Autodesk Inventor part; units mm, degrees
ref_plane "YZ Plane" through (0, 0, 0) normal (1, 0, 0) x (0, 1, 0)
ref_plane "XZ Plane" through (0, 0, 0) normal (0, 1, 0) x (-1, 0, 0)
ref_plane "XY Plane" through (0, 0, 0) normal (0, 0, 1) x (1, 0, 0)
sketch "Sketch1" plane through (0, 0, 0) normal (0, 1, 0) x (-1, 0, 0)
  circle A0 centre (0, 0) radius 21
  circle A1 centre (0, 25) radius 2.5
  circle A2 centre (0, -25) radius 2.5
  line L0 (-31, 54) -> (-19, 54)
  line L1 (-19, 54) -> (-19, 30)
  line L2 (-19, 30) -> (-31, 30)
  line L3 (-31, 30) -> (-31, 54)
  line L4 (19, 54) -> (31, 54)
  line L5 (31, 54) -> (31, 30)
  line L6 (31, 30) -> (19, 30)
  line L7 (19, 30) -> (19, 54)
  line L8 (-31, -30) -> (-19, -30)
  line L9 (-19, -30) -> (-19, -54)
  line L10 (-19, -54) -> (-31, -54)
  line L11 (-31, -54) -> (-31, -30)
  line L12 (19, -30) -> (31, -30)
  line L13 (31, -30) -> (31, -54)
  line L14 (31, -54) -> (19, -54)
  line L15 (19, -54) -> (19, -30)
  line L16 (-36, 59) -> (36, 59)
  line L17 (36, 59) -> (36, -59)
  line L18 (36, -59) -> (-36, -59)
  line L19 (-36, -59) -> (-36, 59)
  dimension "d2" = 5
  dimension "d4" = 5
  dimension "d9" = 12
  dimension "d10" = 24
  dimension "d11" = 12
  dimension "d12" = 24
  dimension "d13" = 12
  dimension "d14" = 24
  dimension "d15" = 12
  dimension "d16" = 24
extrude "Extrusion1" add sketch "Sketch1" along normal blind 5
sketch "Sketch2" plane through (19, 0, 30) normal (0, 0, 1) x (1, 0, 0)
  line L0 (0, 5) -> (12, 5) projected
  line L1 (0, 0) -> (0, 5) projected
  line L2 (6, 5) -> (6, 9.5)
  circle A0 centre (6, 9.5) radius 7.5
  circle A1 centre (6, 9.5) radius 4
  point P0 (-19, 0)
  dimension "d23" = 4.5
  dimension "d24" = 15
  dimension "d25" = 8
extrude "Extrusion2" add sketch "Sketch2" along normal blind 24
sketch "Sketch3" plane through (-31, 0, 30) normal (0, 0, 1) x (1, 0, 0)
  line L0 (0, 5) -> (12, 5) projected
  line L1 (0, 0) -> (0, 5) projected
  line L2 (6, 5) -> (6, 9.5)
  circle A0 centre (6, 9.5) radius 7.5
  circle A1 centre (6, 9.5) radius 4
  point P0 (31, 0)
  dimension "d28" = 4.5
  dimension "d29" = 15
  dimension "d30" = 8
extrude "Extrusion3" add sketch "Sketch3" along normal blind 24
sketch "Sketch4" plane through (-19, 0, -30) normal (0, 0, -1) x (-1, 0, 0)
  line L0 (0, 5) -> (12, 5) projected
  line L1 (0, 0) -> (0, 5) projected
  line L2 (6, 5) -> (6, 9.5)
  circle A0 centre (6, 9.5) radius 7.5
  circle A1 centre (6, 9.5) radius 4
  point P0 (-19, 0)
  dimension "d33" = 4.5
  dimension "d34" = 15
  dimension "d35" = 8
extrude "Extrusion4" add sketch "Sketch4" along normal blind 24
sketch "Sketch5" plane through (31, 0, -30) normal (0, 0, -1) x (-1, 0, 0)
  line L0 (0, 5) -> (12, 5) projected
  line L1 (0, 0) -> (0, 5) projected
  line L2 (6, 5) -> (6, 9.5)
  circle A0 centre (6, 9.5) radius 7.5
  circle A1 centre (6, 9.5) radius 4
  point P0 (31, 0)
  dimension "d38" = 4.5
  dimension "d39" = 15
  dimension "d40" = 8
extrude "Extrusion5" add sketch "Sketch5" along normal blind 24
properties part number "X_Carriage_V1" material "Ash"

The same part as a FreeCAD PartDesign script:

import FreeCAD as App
import Part
import Sketcher
Q = App.Units.Quantity


def add_polygon(sketch, points):
    """Adds a closed chain of lines whose ends are joined by coincident constraints."""
    first, n = sketch.GeometryCount, len(points)
    for a, b in zip(points, points[1:] + points[:1]):
        sketch.addGeometry(Part.LineSegment(App.Vector(*a, 0), App.Vector(*b, 0)), False)
    for i in range(n):
        sketch.addConstraint(Sketcher.Constraint("Coincident", first + i, 2, first + (i + 1) % n, 1))

doc = App.newDocument("Part")
body = doc.addObject("PartDesign::Body", "Body")

# Sketch on XZ plane
sketch1 = body.newObject("Sketcher::SketchObject", "Sketch")
sketch1.AttachmentSupport = (doc.getObject("XZ_Plane"), [""])
sketch1.MapMode = "FlatFace"
add_polygon(sketch1, [(-36, 59), (36, 59), (36, -59), (-36, -59)])  # lines 0-3
add_polygon(sketch1, [(31, -54), (31, -30), (19, -30), (19, -54)])  # lines 4-7
add_polygon(sketch1, [(-19, -54), (-19, -30), (-31, -30), (-31, -54)])  # lines 8-11
sketch1.addGeometry(Part.Circle(App.Vector(0, -25, 0), App.Vector(0, 0, 1), 2.5), False)  # 12
add_polygon(sketch1, [(31, 30), (31, 54), (19, 54), (19, 30)])  # lines 13-16
sketch1.addGeometry(Part.Circle(App.Vector(0, 0, 0), App.Vector(0, 0, 1), 21), False)  # 17
sketch1.addGeometry(Part.Circle(App.Vector(0, 25, 0), App.Vector(0, 0, 1), 2.5), False)  # 18
add_polygon(sketch1, [(-19, 30), (-19, 54), (-31, 54), (-31, 30)])  # lines 19-22
sketch1.addConstraint([
    Sketcher.Constraint("Horizontal", 0),
    Sketcher.Constraint("Vertical", 1),
    Sketcher.Constraint("Horizontal", 2),
    Sketcher.Constraint("Vertical", 3),
    Sketcher.Constraint("Vertical", 4),
    Sketcher.Constraint("Horizontal", 5),
    Sketcher.Constraint("Vertical", 6),
    Sketcher.Constraint("Horizontal", 7),
    Sketcher.Constraint("Vertical", 8),
    Sketcher.Constraint("Horizontal", 9),
    Sketcher.Constraint("Vertical", 10),
    Sketcher.Constraint("Horizontal", 11),
    Sketcher.Constraint("Vertical", 13),
    Sketcher.Constraint("Horizontal", 14),
    Sketcher.Constraint("Vertical", 15),
    Sketcher.Constraint("Horizontal", 16),
    Sketcher.Constraint("Vertical", 19),
    Sketcher.Constraint("Horizontal", 20),
    Sketcher.Constraint("Vertical", 21),
    Sketcher.Constraint("Horizontal", 22),
    Sketcher.Constraint("Coincident", 17, 3, -1, 1),
    Sketcher.Constraint("Equal", 12, 18),
    Sketcher.Constraint("Symmetric", 12, 3, 18, 3, -1, 1),
    Sketcher.Constraint("Symmetric", 0, 2, 2, 2, -1, 1),
    Sketcher.Constraint("Symmetric", 10, 2, 13, 2, -1, 1),
    Sketcher.Constraint("Symmetric", 8, 2, 15, 2, -1, 1),
    Sketcher.Constraint("Symmetric", 6, 2, 19, 2, -1, 1),
    Sketcher.Constraint("Symmetric", 4, 2, 21, 2, -1, 1),
    Sketcher.Constraint("Symmetric", 5, 2, 8, 2, -2),
    Sketcher.Constraint("Symmetric", 7, 2, 10, 2, -2),
    Sketcher.Constraint("PointOnObject", 12, 3, -2),
    Sketcher.Constraint("Diameter", 12, Q("5 mm")),
    Sketcher.Constraint("DistanceX", 5, 2, 5, 1, Q("12 mm")),
    Sketcher.Constraint("DistanceY", 4, 1, 4, 2, Q("24 mm")),
    Sketcher.Constraint("Diameter", 17, Q("42 mm")),
    Sketcher.Constraint("DistanceX", 4, 2, 1, 2, Q("5 mm")),
    Sketcher.Constraint("DistanceY", 4, 2, 12, 3, Q("5 mm")),
    Sketcher.Constraint("DistanceY", 1, 2, 6, 2, Q("5 mm")),
    Sketcher.Constraint("DistanceX", 0, 1, 0, 2, Q("72 mm")),
    Sketcher.Constraint("DistanceY", 1, 2, 1, 1, Q("118 mm")),
])
pad1 = body.newObject("PartDesign::Pad", "Pad")
pad1.Profile = sketch1
pad1.Length = 5
pad1.Reversed = True

# Sketch on XY plane
sketch2 = body.newObject("Sketcher::SketchObject", "Sketch001")
sketch2.AttachmentSupport = (doc.getObject("XY_Plane"), [""])
sketch2.MapMode = "FlatFace"
sketch2.AttachmentOffset = App.Placement(App.Vector(0, 0, 30), App.Rotation())
sketch2.addGeometry([
    Part.Circle(App.Vector(25, 9.5, 0), App.Vector(0, 0, 1), 7.5),
    Part.Circle(App.Vector(25, 9.5, 0), App.Vector(0, 0, 1), 4),
], False)
sketch2.addConstraint([
    Sketcher.Constraint("Coincident", 1, 3, 0, 3),
    Sketcher.Constraint("Diameter", 0, Q("15 mm")),
    Sketcher.Constraint("Diameter", 1, Q("8 mm")),
    Sketcher.Constraint("DistanceX", -1, 1, 0, 3, Q("25 mm")),
    Sketcher.Constraint("DistanceY", -1, 1, 0, 3, Q("9.5 mm")),
])
pad2 = body.newObject("PartDesign::Pad", "Pad001")
pad2.Profile = sketch2
pad2.Length = 24

# Sketch on XY plane
sketch3 = body.newObject("Sketcher::SketchObject", "Sketch002")
sketch3.AttachmentSupport = (doc.getObject("XY_Plane"), [""])
sketch3.MapMode = "FlatFace"
sketch3.AttachmentOffset = App.Placement(App.Vector(0, 0, 30), App.Rotation())
sketch3.addGeometry([
    Part.Circle(App.Vector(-25, 9.5, 0), App.Vector(0, 0, 1), 7.5),
    Part.Circle(App.Vector(-25, 9.5, 0), App.Vector(0, 0, 1), 4),
], False)
sketch3.addConstraint([
    Sketcher.Constraint("Coincident", 1, 3, 0, 3),
    Sketcher.Constraint("Diameter", 0, Q("15 mm")),
    Sketcher.Constraint("Diameter", 1, Q("8 mm")),
    Sketcher.Constraint("DistanceX", 0, 3, -1, 1, Q("25 mm")),
    Sketcher.Constraint("DistanceY", -1, 1, 0, 3, Q("9.5 mm")),
])
pad3 = body.newObject("PartDesign::Pad", "Pad002")
pad3.Profile = sketch3
pad3.Length = 24

# Sketch on XY plane
sketch4 = body.newObject("Sketcher::SketchObject", "Sketch003")
sketch4.AttachmentSupport = (doc.getObject("XY_Plane"), [""])
sketch4.MapMode = "FlatFace"
sketch4.AttachmentOffset = App.Placement(App.Vector(0, 0, -30), App.Rotation())
sketch4.addGeometry([
    Part.Circle(App.Vector(-25, 9.5, 0), App.Vector(0, 0, 1), 7.5),
    Part.Circle(App.Vector(-25, 9.5, 0), App.Vector(0, 0, 1), 4),
], False)
sketch4.addConstraint([
    Sketcher.Constraint("Coincident", 1, 3, 0, 3),
    Sketcher.Constraint("Diameter", 0, Q("15 mm")),
    Sketcher.Constraint("Diameter", 1, Q("8 mm")),
    Sketcher.Constraint("DistanceX", 0, 3, -1, 1, Q("25 mm")),
    Sketcher.Constraint("DistanceY", -1, 1, 0, 3, Q("9.5 mm")),
])
pad4 = body.newObject("PartDesign::Pad", "Pad003")
pad4.Profile = sketch4
pad4.Length = 24
pad4.Reversed = True

# Sketch on XY plane
sketch5 = body.newObject("Sketcher::SketchObject", "Sketch004")
sketch5.AttachmentSupport = (doc.getObject("XY_Plane"), [""])
sketch5.MapMode = "FlatFace"
sketch5.AttachmentOffset = App.Placement(App.Vector(0, 0, -30), App.Rotation())
sketch5.addGeometry([
    Part.Circle(App.Vector(25, 9.5, 0), App.Vector(0, 0, 1), 7.5),
    Part.Circle(App.Vector(25, 9.5, 0), App.Vector(0, 0, 1), 4),
], False)
sketch5.addConstraint([
    Sketcher.Constraint("Coincident", 1, 3, 0, 3),
    Sketcher.Constraint("Diameter", 0, Q("15 mm")),
    Sketcher.Constraint("Diameter", 1, Q("8 mm")),
    Sketcher.Constraint("DistanceX", -1, 1, 0, 3, Q("25 mm")),
    Sketcher.Constraint("DistanceY", -1, 1, 0, 3, Q("9.5 mm")),
])
pad5 = body.newObject("PartDesign::Pad", "Pad004")
pad5.Profile = sketch5
pad5.Length = 24
pad5.Reversed = True

doc.recompute()
